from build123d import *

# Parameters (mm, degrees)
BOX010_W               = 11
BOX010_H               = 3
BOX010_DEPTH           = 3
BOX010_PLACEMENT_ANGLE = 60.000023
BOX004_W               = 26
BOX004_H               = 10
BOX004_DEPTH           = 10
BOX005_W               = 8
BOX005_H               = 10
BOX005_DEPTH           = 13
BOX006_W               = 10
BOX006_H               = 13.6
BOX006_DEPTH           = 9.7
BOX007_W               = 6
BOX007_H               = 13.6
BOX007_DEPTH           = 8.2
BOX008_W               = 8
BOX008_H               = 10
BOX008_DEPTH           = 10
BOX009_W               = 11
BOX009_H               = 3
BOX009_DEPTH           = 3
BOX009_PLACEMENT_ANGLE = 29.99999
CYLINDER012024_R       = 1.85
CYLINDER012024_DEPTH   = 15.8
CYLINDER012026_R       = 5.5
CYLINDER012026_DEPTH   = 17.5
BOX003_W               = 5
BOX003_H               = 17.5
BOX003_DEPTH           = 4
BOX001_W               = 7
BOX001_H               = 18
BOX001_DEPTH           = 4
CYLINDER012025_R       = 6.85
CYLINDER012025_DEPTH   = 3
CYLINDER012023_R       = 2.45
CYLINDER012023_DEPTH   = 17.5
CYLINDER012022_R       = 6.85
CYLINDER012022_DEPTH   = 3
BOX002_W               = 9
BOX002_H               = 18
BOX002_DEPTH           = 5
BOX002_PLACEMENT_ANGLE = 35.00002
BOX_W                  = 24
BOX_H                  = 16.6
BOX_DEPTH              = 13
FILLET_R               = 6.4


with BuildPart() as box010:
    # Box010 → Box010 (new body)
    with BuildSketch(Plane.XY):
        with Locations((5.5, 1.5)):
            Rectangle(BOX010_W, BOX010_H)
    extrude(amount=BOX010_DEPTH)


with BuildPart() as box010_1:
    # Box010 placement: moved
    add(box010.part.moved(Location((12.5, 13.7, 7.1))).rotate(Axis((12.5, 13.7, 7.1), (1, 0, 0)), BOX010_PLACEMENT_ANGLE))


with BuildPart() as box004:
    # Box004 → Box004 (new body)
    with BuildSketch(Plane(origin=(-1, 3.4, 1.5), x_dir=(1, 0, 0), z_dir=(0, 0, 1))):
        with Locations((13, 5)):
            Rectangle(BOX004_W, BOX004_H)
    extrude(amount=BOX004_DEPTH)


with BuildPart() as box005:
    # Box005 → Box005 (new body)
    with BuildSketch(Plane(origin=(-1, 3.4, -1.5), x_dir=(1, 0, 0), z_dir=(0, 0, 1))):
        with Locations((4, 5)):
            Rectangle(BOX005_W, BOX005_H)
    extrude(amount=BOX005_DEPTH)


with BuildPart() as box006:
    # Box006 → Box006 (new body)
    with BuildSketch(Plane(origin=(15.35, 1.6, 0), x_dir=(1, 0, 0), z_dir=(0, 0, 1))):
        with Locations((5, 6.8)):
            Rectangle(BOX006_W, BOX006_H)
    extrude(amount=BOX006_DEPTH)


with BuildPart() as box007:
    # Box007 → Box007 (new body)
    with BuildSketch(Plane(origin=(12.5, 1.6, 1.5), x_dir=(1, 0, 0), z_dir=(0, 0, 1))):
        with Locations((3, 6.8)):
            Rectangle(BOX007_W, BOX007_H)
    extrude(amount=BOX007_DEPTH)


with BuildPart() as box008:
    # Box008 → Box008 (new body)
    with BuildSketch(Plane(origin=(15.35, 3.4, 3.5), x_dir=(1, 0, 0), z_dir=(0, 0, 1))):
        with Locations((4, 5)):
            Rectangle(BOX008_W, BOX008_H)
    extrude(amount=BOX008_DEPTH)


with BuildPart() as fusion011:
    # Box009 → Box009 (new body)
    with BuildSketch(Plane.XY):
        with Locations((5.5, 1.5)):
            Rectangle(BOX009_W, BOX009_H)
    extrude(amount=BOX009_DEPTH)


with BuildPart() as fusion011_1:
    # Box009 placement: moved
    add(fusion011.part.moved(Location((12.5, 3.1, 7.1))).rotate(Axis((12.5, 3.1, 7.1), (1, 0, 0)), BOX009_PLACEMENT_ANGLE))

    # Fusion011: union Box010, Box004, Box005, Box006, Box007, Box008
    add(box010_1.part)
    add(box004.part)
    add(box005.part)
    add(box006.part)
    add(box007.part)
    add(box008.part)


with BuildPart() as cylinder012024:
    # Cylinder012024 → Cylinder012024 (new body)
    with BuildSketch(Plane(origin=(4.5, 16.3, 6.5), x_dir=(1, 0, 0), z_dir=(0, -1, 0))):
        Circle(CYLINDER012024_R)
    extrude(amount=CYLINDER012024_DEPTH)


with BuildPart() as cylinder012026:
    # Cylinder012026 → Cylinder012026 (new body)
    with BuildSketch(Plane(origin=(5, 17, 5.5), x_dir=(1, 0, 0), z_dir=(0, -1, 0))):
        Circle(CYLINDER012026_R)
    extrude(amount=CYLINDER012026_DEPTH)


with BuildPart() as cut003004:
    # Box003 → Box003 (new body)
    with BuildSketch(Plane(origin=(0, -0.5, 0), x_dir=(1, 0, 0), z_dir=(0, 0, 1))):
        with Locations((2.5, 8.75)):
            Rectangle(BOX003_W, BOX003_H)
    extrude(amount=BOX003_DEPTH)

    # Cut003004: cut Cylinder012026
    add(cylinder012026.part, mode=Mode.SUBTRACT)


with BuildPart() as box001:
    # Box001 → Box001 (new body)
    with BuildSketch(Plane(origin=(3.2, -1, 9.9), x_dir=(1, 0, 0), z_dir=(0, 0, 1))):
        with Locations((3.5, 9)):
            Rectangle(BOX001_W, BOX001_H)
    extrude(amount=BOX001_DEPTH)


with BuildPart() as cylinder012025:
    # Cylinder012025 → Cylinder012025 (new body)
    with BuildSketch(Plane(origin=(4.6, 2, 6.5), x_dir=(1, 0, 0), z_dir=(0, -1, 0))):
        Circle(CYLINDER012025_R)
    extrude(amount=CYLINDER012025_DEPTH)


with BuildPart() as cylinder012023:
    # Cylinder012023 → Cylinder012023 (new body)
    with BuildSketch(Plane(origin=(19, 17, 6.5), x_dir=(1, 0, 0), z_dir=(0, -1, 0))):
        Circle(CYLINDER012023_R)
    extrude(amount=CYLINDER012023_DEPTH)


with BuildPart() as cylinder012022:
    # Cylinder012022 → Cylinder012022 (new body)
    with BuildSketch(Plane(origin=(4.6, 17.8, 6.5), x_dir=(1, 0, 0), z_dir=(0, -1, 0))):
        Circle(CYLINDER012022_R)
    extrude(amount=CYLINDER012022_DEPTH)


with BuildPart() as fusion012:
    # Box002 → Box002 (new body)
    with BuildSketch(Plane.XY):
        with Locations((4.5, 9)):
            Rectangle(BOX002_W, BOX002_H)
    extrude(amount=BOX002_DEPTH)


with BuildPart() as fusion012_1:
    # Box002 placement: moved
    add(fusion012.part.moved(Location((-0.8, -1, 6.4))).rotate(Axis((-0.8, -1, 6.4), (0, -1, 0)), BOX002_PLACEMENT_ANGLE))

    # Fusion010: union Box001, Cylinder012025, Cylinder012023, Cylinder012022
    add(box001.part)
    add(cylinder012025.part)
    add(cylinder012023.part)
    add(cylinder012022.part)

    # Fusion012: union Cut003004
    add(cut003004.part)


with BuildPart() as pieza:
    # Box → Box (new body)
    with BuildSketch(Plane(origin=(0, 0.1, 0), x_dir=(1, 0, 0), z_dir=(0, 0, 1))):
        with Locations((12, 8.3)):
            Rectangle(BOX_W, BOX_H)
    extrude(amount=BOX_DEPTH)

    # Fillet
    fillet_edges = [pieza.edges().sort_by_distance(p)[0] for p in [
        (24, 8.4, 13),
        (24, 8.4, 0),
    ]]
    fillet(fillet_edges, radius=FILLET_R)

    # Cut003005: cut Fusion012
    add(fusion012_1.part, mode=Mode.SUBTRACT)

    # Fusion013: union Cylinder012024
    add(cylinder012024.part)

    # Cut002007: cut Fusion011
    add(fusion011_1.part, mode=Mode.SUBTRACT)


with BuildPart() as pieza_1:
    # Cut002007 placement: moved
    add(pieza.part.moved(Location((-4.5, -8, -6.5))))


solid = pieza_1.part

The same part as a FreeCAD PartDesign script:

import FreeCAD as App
import Part
import Sketcher
Q = App.Units.Quantity


def edges_at(feature, points):
    """Names of the edges that pass closest to the given points."""
    edges = feature.Shape.Edges
    near = lambda p: min(range(len(edges)), key=lambda i: edges[i].distToShape(Part.Vertex(*p))[0])
    return sorted({f"Edge{near(p) + 1}" for p in points})


def add_polygon(sketch, points):
    """Adds a closed chain of lines whose ends are joined by coincident constraints."""
    first, n = sketch.GeometryCount, len(points)
    for a, b in zip(points, points[1:] + points[:1]):
        sketch.addGeometry(Part.LineSegment(App.Vector(*a, 0), App.Vector(*b, 0)), False)
    for i in range(n):
        sketch.addConstraint(Sketcher.Constraint("Coincident", first + i, 2, first + (i + 1) % n, 1))

doc = App.newDocument("Part")
body = doc.addObject("PartDesign::Body", "Body")

# Sketch on XY plane
sketch1 = body.newObject("Sketcher::SketchObject", "Sketch")
sketch1.AttachmentSupport = (doc.getObject("XY_Plane"), [""])
sketch1.MapMode = "FlatFace"
add_polygon(sketch1, [(0, 3), (0, 0), (11, 0), (11, 3)])  # lines 0-3
sketch1.addConstraint([
    Sketcher.Constraint("Vertical", 0),
    Sketcher.Constraint("Horizontal", 1),
    Sketcher.Constraint("Vertical", 2),
    Sketcher.Constraint("Horizontal", 3),
    Sketcher.Constraint("Coincident", 0, 2, -1, 1),
    Sketcher.Constraint("DistanceX", 1, 1, 1, 2, Q("11 mm")),
    Sketcher.Constraint("DistanceY", 0, 2, 0, 1, Q("3 mm")),
])
pad1 = body.newObject("PartDesign::Pad", "Pad")
pad1.Profile = sketch1
pad1.Length = 3
body2 = doc.addObject("PartDesign::Body", "Body001")
doc.recompute()

body.Placement = App.Placement(App.Vector(12.5, 13.7, 7.1), App.Rotation(App.Vector(1, 0, 0), 60.000023))
boolean = body2.newObject("PartDesign::Boolean", "Boolean")
boolean.Type = "Fuse"
boolean.addObjects([body])
body3 = doc.addObject("PartDesign::Body", "Body002")

# Sketch on XY plane
sketch2 = body3.newObject("Sketcher::SketchObject", "Sketch001")
sketch2.AttachmentSupport = (doc.getObject("XY_Plane002"), [""])
sketch2.MapMode = "FlatFace"
sketch2.AttachmentOffset = App.Placement(App.Vector(0, 0, 1.5), App.Rotation())
add_polygon(sketch2, [(-1, 13.4), (-1, 3.4), (25, 3.4), (25, 13.4)])  # lines 0-3
sketch2.addConstraint([
    Sketcher.Constraint("Vertical", 0),
    Sketcher.Constraint("Horizontal", 1),
    Sketcher.Constraint("Vertical", 2),
    Sketcher.Constraint("Horizontal", 3),
    Sketcher.Constraint("DistanceX", 1, 1, 1, 2, Q("26 mm")),
    Sketcher.Constraint("DistanceY", 0, 2, 0, 1, Q("10 mm")),
    Sketcher.Constraint("DistanceX", 0, 2, -1, 1, Q("1 mm")),
    Sketcher.Constraint("DistanceY", -1, 1, 0, 2, Q("3.4 mm")),
])
pad2 = body3.newObject("PartDesign::Pad", "Pad001")
pad2.Profile = sketch2
pad2.Length = 10
body4 = doc.addObject("PartDesign::Body", "Body003")

# Sketch on XY plane
sketch3 = body4.newObject("Sketcher::SketchObject", "Sketch002")
sketch3.AttachmentSupport = (doc.getObject("XY_Plane003"), [""])
sketch3.MapMode = "FlatFace"
sketch3.AttachmentOffset = App.Placement(App.Vector(0, 0, -1.5), App.Rotation())
add_polygon(sketch3, [(-1, 13.4), (-1, 3.4), (7, 3.4), (7, 13.4)])  # lines 0-3
sketch3.addConstraint([
    Sketcher.Constraint("Vertical", 0),
    Sketcher.Constraint("Horizontal", 1),
    Sketcher.Constraint("Vertical", 2),
    Sketcher.Constraint("Horizontal", 3),
    Sketcher.Constraint("DistanceX", 1, 1, 1, 2, Q("8 mm")),
    Sketcher.Constraint("DistanceY", 0, 2, 0, 1, Q("10 mm")),
    Sketcher.Constraint("DistanceX", 0, 2, -1, 1, Q("1 mm")),
    Sketcher.Constraint("DistanceY", -1, 1, 0, 2, Q("3.4 mm")),
])
pad3 = body4.newObject("PartDesign::Pad", "Pad002")
pad3.Profile = sketch3
pad3.Length = 13
body5 = doc.addObject("PartDesign::Body", "Body004")

# Sketch on XY plane
sketch4 = body5.newObject("Sketcher::SketchObject", "Sketch003")
sketch4.AttachmentSupport = (doc.getObject("XY_Plane004"), [""])
sketch4.MapMode = "FlatFace"
add_polygon(sketch4, [(15.35, 15.2), (15.35, 1.6), (25.35, 1.6), (25.35, 15.2)])  # lines 0-3
sketch4.addConstraint([
    Sketcher.Constraint("Vertical", 0),
    Sketcher.Constraint("Horizontal", 1),
    Sketcher.Constraint("Vertical", 2),
    Sketcher.Constraint("Horizontal", 3),
    Sketcher.Constraint("DistanceX", 1, 1, 1, 2, Q("10 mm")),
    Sketcher.Constraint("DistanceY", 0, 2, 0, 1, Q("13.6 mm")),
    Sketcher.Constraint("DistanceY", -1, 1, 0, 2, Q("1.6 mm")),
    Sketcher.Constraint("DistanceX", -1, 1, 0, 2, Q("15.35 mm")),
])
pad4 = body5.newObject("PartDesign::Pad", "Pad003")
pad4.Profile = sketch4
pad4.Length = 9.7
body6 = doc.addObject("PartDesign::Body", "Body005")

# Sketch on XY plane
sketch5 = body6.newObject("Sketcher::SketchObject", "Sketch004")
sketch5.AttachmentSupport = (doc.getObject("XY_Plane005"), [""])
sketch5.MapMode = "FlatFace"
sketch5.AttachmentOffset = App.Placement(App.Vector(0, 0, 1.5), App.Rotation())
add_polygon(sketch5, [(12.5, 15.2), (12.5, 1.6), (18.5, 1.6), (18.5, 15.2)])  # lines 0-3
sketch5.addConstraint([
    Sketcher.Constraint("Vertical", 0),
    Sketcher.Constraint("Horizontal", 1),
    Sketcher.Constraint("Vertical", 2),
    Sketcher.Constraint("Horizontal", 3),
    Sketcher.Constraint("DistanceX", 1, 1, 1, 2, Q("6 mm")),
    Sketcher.Constraint("DistanceY", 0, 2, 0, 1, Q("13.6 mm")),
    Sketcher.Constraint("DistanceX", -1, 1, 0, 2, Q("12.5 mm")),
    Sketcher.Constraint("DistanceY", -1, 1, 0, 2, Q("1.6 mm")),
])
pad5 = body6.newObject("PartDesign::Pad", "Pad004")
pad5.Profile = sketch5
pad5.Length = 8.2
body7 = doc.addObject("PartDesign::Body", "Body006")

# Sketch on XY plane
sketch6 = body7.newObject("Sketcher::SketchObject", "Sketch005")
sketch6.AttachmentSupport = (doc.getObject("XY_Plane006"), [""])
sketch6.MapMode = "FlatFace"
sketch6.AttachmentOffset = App.Placement(App.Vector(0, 0, 3.5), App.Rotation())
add_polygon(sketch6, [(15.35, 13.4), (15.35, 3.4), (23.35, 3.4), (23.35, 13.4)])  # lines 0-3
sketch6.addConstraint([
    Sketcher.Constraint("Vertical", 0),
    Sketcher.Constraint("Horizontal", 1),
    Sketcher.Constraint("Vertical", 2),
    Sketcher.Constraint("Horizontal", 3),
    Sketcher.Constraint("DistanceX", 1, 1, 1, 2, Q("8 mm")),
    Sketcher.Constraint("DistanceY", 0, 2, 0, 1, Q("10 mm")),
    Sketcher.Constraint("DistanceY", -1, 1, 0, 2, Q("3.4 mm")),
    Sketcher.Constraint("DistanceX", -1, 1, 0, 2, Q("15.35 mm")),
])
pad6 = body7.newObject("PartDesign::Pad", "Pad005")
pad6.Profile = sketch6
pad6.Length = 10
body8 = doc.addObject("PartDesign::Body", "Body007")

# Sketch on XY plane
sketch7 = body8.newObject("Sketcher::SketchObject", "Sketch006")
sketch7.AttachmentSupport = (doc.getObject("XY_Plane007"), [""])
sketch7.MapMode = "FlatFace"
add_polygon(sketch7, [(0, 3), (0, 0), (11, 0), (11, 3)])  # lines 0-3
sketch7.addConstraint([
    Sketcher.Constraint("Vertical", 0),
    Sketcher.Constraint("Horizontal", 1),
    Sketcher.Constraint("Vertical", 2),
    Sketcher.Constraint("Horizontal", 3),
    Sketcher.Constraint("Coincident", 0, 2, -1, 1),
    Sketcher.Constraint("DistanceX", 1, 1, 1, 2, Q("11 mm")),
    Sketcher.Constraint("DistanceY", 0, 2, 0, 1, Q("3 mm")),
])
pad7 = body8.newObject("PartDesign::Pad", "Pad006")
pad7.Profile = sketch7
pad7.Length = 3
body9 = doc.addObject("PartDesign::Body", "Body008")
body9.AllowCompound = True
doc.recompute()

body8.Placement = App.Placement(App.Vector(12.5, 3.1, 7.1), App.Rotation(App.Vector(1, 0, 0), 29.99999))
boolean2 = body9.newObject("PartDesign::Boolean", "Boolean001")
boolean2.Type = "Fuse"
boolean2.addObjects([body8])
doc.recompute()

boolean3 = body9.newObject("PartDesign::Boolean", "Boolean002")
boolean3.Type = "Fuse"
boolean3.addObjects([body2])
doc.recompute()

boolean4 = body9.newObject("PartDesign::Boolean", "Boolean003")
boolean4.Type = "Fuse"
boolean4.addObjects([body3])
doc.recompute()

boolean5 = body9.newObject("PartDesign::Boolean", "Boolean004")
boolean5.Type = "Fuse"
boolean5.addObjects([body4])
doc.recompute()

boolean6 = body9.newObject("PartDesign::Boolean", "Boolean005")
boolean6.Type = "Fuse"
boolean6.addObjects([body5])
doc.recompute()

boolean7 = body9.newObject("PartDesign::Boolean", "Boolean006")
boolean7.Type = "Fuse"
boolean7.addObjects([body6])
doc.recompute()

boolean8 = body9.newObject("PartDesign::Boolean", "Boolean007")
boolean8.Type = "Fuse"
boolean8.addObjects([body7])
body10 = doc.addObject("PartDesign::Body", "Body009")

# Sketch on XZ plane
sketch8 = body10.newObject("Sketcher::SketchObject", "Sketch007")
sketch8.AttachmentSupport = (doc.getObject("XZ_Plane009"), [""])
sketch8.MapMode = "FlatFace"
sketch8.AttachmentOffset = App.Placement(App.Vector(0, 0, -16.3), App.Rotation())
sketch8.addGeometry(Part.Circle(App.Vector(4.5, 6.5, 0), App.Vector(0, 0, 1), 1.85), False)
sketch8.addConstraint([
    Sketcher.Constraint("Diameter", 0, Q("3.7 mm")),
    Sketcher.Constraint("DistanceX", -1, 1, 0, 3, Q("4.5 mm")),
    Sketcher.Constraint("DistanceY", -1, 1, 0, 3, Q("6.5 mm")),
])
pad8 = body10.newObject("PartDesign::Pad", "Pad007")
pad8.Profile = sketch8
pad8.Length = 15.8
body11 = doc.addObject("PartDesign::Body", "Body010")

# Sketch on XZ plane
sketch9 = body11.newObject("Sketcher::SketchObject", "Sketch008")
sketch9.AttachmentSupport = (doc.getObject("XZ_Plane010"), [""])
sketch9.MapMode = "FlatFace"
sketch9.AttachmentOffset = App.Placement(App.Vector(0, 0, -17), App.Rotation())
sketch9.addGeometry(Part.Circle(App.Vector(5, 5.5, 0), App.Vector(0, 0, 1), 5.5), False)
sketch9.addConstraint([
    Sketcher.Constraint("Diameter", 0, Q("11 mm")),
    Sketcher.Constraint("DistanceX", -1, 1, 0, 3, Q("5 mm")),
    Sketcher.Constraint("DistanceY", -1, 1, 0, 3, Q("5.5 mm")),
])
pad9 = body11.newObject("PartDesign::Pad", "Pad008")
pad9.Profile = sketch9
pad9.Length = 17.5
body12 = doc.addObject("PartDesign::Body", "Body011")

# Sketch on XY plane
sketch10 = body12.newObject("Sketcher::SketchObject", "Sketch009")
sketch10.AttachmentSupport = (doc.getObject("XY_Plane011"), [""])
sketch10.MapMode = "FlatFace"
add_polygon(sketch10, [(0, 17), (0, -0.5), (5, -0.5), (5, 17)])  # lines 0-3
sketch10.addConstraint([
    Sketcher.Constraint("Vertical", 0),
    Sketcher.Constraint("Horizontal", 1),
    Sketcher.Constraint("Vertical", 2),
    Sketcher.Constraint("Horizontal", 3),
    Sketcher.Constraint("PointOnObject", 0, 2, -2),
    Sketcher.Constraint("DistanceX", 1, 1, 1, 2, Q("5 mm")),
    Sketcher.Constraint("DistanceY", 0, 2, 0, 1, Q("17.5 mm")),
    Sketcher.Constraint("DistanceY", -1, 1, 2, 2, Q("17 mm")),
])
pad10 = body12.newObject("PartDesign::Pad", "Pad009")
pad10.Profile = sketch10
pad10.Length = 4
doc.recompute()

boolean9 = body12.newObject("PartDesign::Boolean", "Boolean008")
boolean9.Type = "Cut"
boolean9.addObjects([body11])
body13 = doc.addObject("PartDesign::Body", "Body012")

# Sketch on XY plane
sketch11 = body13.newObject("Sketcher::SketchObject", "Sketch010")
sketch11.AttachmentSupport = (doc.getObject("XY_Plane012"), [""])
sketch11.MapMode = "FlatFace"
sketch11.AttachmentOffset = App.Placement(App.Vector(0, 0, 9.9), App.Rotation())
add_polygon(sketch11, [(3.2, 17), (3.2, -1), (10.2, -1), (10.2, 17)])  # lines 0-3
sketch11.addConstraint([
    Sketcher.Constraint("Vertical", 0),
    Sketcher.Constraint("Horizontal", 1),
    Sketcher.Constraint("Vertical", 2),
    Sketcher.Constraint("Horizontal", 3),
    Sketcher.Constraint("DistanceX", 1, 1, 1, 2, Q("7 mm")),
    Sketcher.Constraint("DistanceY", 0, 2, 0, 1, Q("18 mm")),
    Sketcher.Constraint("DistanceY", 0, 2, -1, 1, Q("1 mm")),
    Sketcher.Constraint("DistanceX", -1, 1, 0, 2, Q("3.2 mm")),
])
pad11 = body13.newObject("PartDesign::Pad", "Pad010")
pad11.Profile = sketch11
pad11.Length = 4
body14 = doc.addObject("PartDesign::Body", "Body013")

# Sketch on XZ plane
sketch12 = body14.newObject("Sketcher::SketchObject", "Sketch011")
sketch12.AttachmentSupport = (doc.getObject("XZ_Plane013"), [""])
sketch12.MapMode = "FlatFace"
sketch12.AttachmentOffset = App.Placement(App.Vector(0, 0, -2), App.Rotation())
sketch12.addGeometry(Part.Circle(App.Vector(4.6, 6.5, 0), App.Vector(0, 0, 1), 6.85), False)
sketch12.addConstraint([
    Sketcher.Constraint("Diameter", 0, Q("13.7 mm")),
    Sketcher.Constraint("DistanceX", -1, 1, 0, 3, Q("4.6 mm")),
    Sketcher.Constraint("DistanceY", -1, 1, 0, 3, Q("6.5 mm")),
])
pad12 = body14.newObject("PartDesign::Pad", "Pad011")
pad12.Profile = sketch12
pad12.Length = 3
body15 = doc.addObject("PartDesign::Body", "Body014")

# Sketch on XZ plane
sketch13 = body15.newObject("Sketcher::SketchObject", "Sketch012")
sketch13.AttachmentSupport = (doc.getObject("XZ_Plane014"), [""])
sketch13.MapMode = "FlatFace"
sketch13.AttachmentOffset = App.Placement(App.Vector(0, 0, -17), App.Rotation())
sketch13.addGeometry(Part.Circle(App.Vector(19, 6.5, 0), App.Vector(0, 0, 1), 2.45), False)
sketch13.addConstraint([
    Sketcher.Constraint("Diameter", 0, Q("4.9 mm")),
    Sketcher.Constraint("DistanceX", -1, 1, 0, 3, Q("19 mm")),
    Sketcher.Constraint("DistanceY", -1, 1, 0, 3, Q("6.5 mm")),
])
pad13 = body15.newObject("PartDesign::Pad", "Pad012")
pad13.Profile = sketch13
pad13.Length = 17.5
body16 = doc.addObject("PartDesign::Body", "Body015")

# Sketch on XZ plane
sketch14 = body16.newObject("Sketcher::SketchObject", "Sketch013")
sketch14.AttachmentSupport = (doc.getObject("XZ_Plane015"), [""])
sketch14.MapMode = "FlatFace"
sketch14.AttachmentOffset = App.Placement(App.Vector(0, 0, -17.8), App.Rotation())
sketch14.addGeometry(Part.Circle(App.Vector(4.6, 6.5, 0), App.Vector(0, 0, 1), 6.85), False)
sketch14.addConstraint([
    Sketcher.Constraint("Diameter", 0, Q("13.7 mm")),
    Sketcher.Constraint("DistanceX", -1, 1, 0, 3, Q("4.6 mm")),
    Sketcher.Constraint("DistanceY", -1, 1, 0, 3, Q("6.5 mm")),
])
pad14 = body16.newObject("PartDesign::Pad", "Pad013")
pad14.Profile = sketch14
pad14.Length = 3
body17 = doc.addObject("PartDesign::Body", "Body016")

# Sketch on XY plane
sketch15 = body17.newObject("Sketcher::SketchObject", "Sketch014")
sketch15.AttachmentSupport = (doc.getObject("XY_Plane016"), [""])
sketch15.MapMode = "FlatFace"
add_polygon(sketch15, [(0, 18), (0, 0), (9, 0), (9, 18)])  # lines 0-3
sketch15.addConstraint([
    Sketcher.Constraint("Vertical", 0),
    Sketcher.Constraint("Horizontal", 1),
    Sketcher.Constraint("Vertical", 2),
    Sketcher.Constraint("Horizontal", 3),
    Sketcher.Constraint("Coincident", 0, 2, -1, 1),
    Sketcher.Constraint("DistanceX", 1, 1, 1, 2, Q("9 mm")),
    Sketcher.Constraint("DistanceY", 0, 2, 0, 1, Q("18 mm")),
])
pad15 = body17.newObject("PartDesign::Pad", "Pad014")
pad15.Profile = sketch15
pad15.Length = 5
body18 = doc.addObject("PartDesign::Body", "Body017")
body18.AllowCompound = True
doc.recompute()

body17.Placement = App.Placement(App.Vector(-0.8, -1, 6.4), App.Rotation(App.Vector(0, -1, 0), 35.00002))
boolean10 = body18.newObject("PartDesign::Boolean", "Boolean009")
boolean10.Type = "Fuse"
boolean10.addObjects([body17])
doc.recompute()

boolean11 = body18.newObject("PartDesign::Boolean", "Boolean010")
boolean11.Type = "Fuse"
boolean11.addObjects([body13])
doc.recompute()

boolean12 = body18.newObject("PartDesign::Boolean", "Boolean011")
boolean12.Type = "Fuse"
boolean12.addObjects([body14])
doc.recompute()

boolean13 = body18.newObject("PartDesign::Boolean", "Boolean012")
boolean13.Type = "Fuse"
boolean13.addObjects([body15])
doc.recompute()

boolean14 = body18.newObject("PartDesign::Boolean", "Boolean013")
boolean14.Type = "Fuse"
boolean14.addObjects([body16])
doc.recompute()

boolean15 = body18.newObject("PartDesign::Boolean", "Boolean014")
boolean15.Type = "Fuse"
boolean15.addObjects([body12])
body19 = doc.addObject("PartDesign::Body", "Body018")

# Sketch on XY plane
sketch16 = body19.newObject("Sketcher::SketchObject", "Sketch015")
sketch16.AttachmentSupport = (doc.getObject("XY_Plane018"), [""])
sketch16.MapMode = "FlatFace"
add_polygon(sketch16, [(0, 16.7), (0, 0.1), (24, 0.1), (24, 16.7)])  # lines 0-3
sketch16.addConstraint([
    Sketcher.Constraint("Vertical", 0),
    Sketcher.Constraint("Horizontal", 1),
    Sketcher.Constraint("Vertical", 2),
    Sketcher.Constraint("Horizontal", 3),
    Sketcher.Constraint("PointOnObject", 0, 2, -2),
    Sketcher.Constraint("DistanceX", 1, 1, 1, 2, Q("24 mm")),
    Sketcher.Constraint("DistanceY", 0, 2, 0, 1, Q("16.6 mm")),
    Sketcher.Constraint("DistanceY", -1, 1, 0, 2, Q("0.1 mm")),
])
pad16 = body19.newObject("PartDesign::Pad", "Pad015")
pad16.Profile = sketch16
pad16.Length = 13
doc.recompute()

fillet = body19.newObject("PartDesign::Fillet", "Fillet")
fillet.Base = (pad16, edges_at(pad16, [(24, 8.4, 13), (24, 8.4, 0)]))
fillet.Radius = 6.4
doc.recompute()

boolean16 = body19.newObject("PartDesign::Boolean", "Boolean015")
boolean16.Type = "Cut"
boolean16.addObjects([body18])
doc.recompute()

boolean17 = body19.newObject("PartDesign::Boolean", "Boolean016")
boolean17.Type = "Fuse"
boolean17.addObjects([body10])
doc.recompute()

boolean18 = body19.newObject("PartDesign::Boolean", "Boolean017")
boolean18.Type = "Cut"
boolean18.addObjects([body9])
body20 = doc.addObject("PartDesign::Body", "Body019")
doc.recompute()

body19.Placement = App.Placement(App.Vector(-4.5, -8, -6.5), App.Rotation(App.Vector(0, 0, 1), 0))
boolean19 = body20.newObject("PartDesign::Boolean", "Boolean018")
boolean19.Type = "Fuse"
boolean19.addObjects([body19])

doc.recompute()
